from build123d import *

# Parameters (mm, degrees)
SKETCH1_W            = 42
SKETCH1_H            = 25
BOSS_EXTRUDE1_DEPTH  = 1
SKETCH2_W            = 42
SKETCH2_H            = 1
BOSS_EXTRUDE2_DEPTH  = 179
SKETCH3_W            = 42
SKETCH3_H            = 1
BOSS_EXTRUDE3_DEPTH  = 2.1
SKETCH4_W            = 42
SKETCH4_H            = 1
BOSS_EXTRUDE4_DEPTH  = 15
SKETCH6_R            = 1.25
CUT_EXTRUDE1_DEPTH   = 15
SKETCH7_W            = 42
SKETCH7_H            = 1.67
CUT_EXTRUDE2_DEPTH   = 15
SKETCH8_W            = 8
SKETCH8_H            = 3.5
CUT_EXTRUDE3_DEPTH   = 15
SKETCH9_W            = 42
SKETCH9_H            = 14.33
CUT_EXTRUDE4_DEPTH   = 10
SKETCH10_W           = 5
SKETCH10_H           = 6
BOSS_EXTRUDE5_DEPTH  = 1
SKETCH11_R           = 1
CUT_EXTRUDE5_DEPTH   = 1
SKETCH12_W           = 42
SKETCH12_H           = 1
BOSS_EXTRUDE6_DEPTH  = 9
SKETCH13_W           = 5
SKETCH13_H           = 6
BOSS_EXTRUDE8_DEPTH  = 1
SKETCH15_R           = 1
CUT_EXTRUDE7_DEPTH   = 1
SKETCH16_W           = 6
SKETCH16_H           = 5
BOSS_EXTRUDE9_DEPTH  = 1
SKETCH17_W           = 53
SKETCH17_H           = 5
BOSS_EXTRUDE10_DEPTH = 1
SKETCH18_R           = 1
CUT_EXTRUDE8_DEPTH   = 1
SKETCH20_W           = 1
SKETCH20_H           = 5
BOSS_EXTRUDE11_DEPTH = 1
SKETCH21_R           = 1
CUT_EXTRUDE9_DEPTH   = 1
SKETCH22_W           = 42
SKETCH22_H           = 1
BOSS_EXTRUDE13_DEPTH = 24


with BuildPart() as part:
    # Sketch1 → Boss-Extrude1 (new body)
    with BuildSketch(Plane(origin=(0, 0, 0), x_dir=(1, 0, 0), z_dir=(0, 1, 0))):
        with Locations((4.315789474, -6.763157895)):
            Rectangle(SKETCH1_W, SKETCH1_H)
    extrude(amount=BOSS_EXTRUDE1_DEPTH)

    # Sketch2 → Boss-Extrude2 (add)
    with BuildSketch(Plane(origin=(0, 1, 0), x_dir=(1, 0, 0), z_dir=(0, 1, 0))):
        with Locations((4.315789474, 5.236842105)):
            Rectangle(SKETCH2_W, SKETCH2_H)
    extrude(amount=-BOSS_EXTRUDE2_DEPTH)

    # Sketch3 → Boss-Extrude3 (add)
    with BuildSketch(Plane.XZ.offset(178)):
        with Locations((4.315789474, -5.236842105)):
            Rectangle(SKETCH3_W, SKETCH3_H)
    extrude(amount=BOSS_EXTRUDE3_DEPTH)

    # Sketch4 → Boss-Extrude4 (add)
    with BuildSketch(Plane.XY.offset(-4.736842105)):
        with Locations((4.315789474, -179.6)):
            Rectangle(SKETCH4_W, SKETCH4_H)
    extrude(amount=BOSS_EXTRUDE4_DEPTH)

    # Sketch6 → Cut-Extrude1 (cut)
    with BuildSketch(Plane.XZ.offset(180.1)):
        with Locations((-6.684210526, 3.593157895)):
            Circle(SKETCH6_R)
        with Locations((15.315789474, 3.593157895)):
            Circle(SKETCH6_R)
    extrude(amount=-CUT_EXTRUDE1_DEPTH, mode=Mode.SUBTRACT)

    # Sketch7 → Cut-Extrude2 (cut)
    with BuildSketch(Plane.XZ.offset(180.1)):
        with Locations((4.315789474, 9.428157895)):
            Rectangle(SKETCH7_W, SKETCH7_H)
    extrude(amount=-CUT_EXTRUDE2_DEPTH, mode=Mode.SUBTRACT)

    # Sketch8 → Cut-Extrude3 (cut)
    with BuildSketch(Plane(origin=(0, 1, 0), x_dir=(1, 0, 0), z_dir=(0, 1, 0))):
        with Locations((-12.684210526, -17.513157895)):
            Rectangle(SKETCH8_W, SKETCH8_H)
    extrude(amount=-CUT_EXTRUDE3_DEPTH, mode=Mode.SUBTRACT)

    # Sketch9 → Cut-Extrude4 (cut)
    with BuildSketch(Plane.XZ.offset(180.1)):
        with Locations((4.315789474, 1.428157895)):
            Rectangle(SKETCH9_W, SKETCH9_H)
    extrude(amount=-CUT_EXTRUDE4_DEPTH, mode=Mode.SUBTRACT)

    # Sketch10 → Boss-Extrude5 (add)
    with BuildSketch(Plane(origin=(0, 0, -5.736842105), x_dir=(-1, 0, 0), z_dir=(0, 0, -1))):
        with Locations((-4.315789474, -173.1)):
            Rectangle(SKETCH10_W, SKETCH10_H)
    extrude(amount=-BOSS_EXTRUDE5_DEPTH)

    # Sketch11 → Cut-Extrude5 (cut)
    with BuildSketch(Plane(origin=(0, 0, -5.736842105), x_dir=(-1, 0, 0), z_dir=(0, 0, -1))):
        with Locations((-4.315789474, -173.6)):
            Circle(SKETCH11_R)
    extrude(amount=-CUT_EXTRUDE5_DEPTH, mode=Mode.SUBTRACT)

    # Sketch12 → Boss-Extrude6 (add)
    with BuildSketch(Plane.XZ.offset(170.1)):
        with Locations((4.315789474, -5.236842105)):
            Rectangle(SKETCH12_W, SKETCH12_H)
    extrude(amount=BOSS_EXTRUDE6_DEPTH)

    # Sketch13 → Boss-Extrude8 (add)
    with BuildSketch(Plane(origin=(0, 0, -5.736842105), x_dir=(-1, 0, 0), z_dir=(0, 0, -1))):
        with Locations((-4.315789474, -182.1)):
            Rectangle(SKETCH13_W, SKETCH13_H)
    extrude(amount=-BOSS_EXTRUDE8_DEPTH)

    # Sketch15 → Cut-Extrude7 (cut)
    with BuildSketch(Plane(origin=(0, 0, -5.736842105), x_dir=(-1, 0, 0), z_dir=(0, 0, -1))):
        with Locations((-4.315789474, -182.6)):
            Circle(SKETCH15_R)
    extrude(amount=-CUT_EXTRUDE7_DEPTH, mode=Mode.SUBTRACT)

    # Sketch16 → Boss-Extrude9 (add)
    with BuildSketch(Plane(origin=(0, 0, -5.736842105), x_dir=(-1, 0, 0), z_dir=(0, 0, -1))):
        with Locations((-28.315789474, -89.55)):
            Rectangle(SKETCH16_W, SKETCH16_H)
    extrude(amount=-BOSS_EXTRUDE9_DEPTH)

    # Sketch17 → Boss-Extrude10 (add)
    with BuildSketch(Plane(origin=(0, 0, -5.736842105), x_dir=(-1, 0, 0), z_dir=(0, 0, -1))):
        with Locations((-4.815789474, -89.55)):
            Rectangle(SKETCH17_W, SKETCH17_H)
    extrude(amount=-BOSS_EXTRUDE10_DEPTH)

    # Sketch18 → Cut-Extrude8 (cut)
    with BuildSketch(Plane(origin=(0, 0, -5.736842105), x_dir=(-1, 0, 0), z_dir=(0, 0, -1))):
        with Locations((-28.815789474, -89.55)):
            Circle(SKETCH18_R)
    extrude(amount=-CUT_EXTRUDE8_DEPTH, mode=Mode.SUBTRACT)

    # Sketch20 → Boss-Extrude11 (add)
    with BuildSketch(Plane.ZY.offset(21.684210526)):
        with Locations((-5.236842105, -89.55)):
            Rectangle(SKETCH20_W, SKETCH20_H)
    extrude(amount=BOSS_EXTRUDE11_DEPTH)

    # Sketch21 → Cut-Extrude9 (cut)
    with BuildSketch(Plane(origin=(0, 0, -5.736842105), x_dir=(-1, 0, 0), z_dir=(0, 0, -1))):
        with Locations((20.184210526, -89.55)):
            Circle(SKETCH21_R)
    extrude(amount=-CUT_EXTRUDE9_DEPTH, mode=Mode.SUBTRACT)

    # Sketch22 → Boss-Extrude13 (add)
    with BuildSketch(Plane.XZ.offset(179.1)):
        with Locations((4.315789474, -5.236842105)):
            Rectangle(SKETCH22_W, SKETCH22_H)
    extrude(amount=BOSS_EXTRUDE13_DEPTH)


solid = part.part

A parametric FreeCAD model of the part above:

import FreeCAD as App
import Part
import Sketcher
Q = App.Units.Quantity


def add_polygon(sketch, points):
    """Adds a closed chain of lines whose ends are joined by coincident constraints."""
    first, n = sketch.GeometryCount, len(points)
    for a, b in zip(points, points[1:] + points[:1]):
        sketch.addGeometry(Part.LineSegment(App.Vector(*a, 0), App.Vector(*b, 0)), False)
    for i in range(n):
        sketch.addConstraint(Sketcher.Constraint("Coincident", first + i, 2, first + (i + 1) % n, 1))

doc = App.newDocument("Part")
body = doc.addObject("PartDesign::Body", "Body")

# Sketch on XZ plane
sketch1 = body.newObject("Sketcher::SketchObject", "Sketch")
sketch1.AttachmentSupport = (doc.getObject("XZ_Plane"), [""])
sketch1.MapMode = "FlatFace"
add_polygon(sketch1, [(-17, -6), (-17, 19), (25, 19), (25, -6)])  # lines 0-3
sketch1.addConstraint(Sketcher.Constraint("Vertical", 0))
sketch1.addConstraint(Sketcher.Constraint("Horizontal", 1))
sketch1.addConstraint(Sketcher.Constraint("Vertical", 2))
sketch1.addConstraint(Sketcher.Constraint("Horizontal", 3))
sketch1.addConstraint(Sketcher.Constraint("DistanceX", 1, 1, 1, 2, Q("42 mm")))
sketch1.addConstraint(Sketcher.Constraint("DistanceY", 0, 1, 0, 2, Q("25 mm")))
sketch1.addConstraint(Sketcher.Constraint("DistanceX", 0, 2, -1, 1, Q("16.684211 mm")))
sketch1.addConstraint(Sketcher.Constraint("DistanceY", -1, 1, 0, 2, Q("19.263158 mm")))
pad1 = body.newObject("PartDesign::Pad", "Pad")
pad1.Profile = sketch1
pad1.Length = 1
pad1.Reversed = True

# Sketch on XZ plane
sketch2 = body.newObject("Sketcher::SketchObject", "Sketch001")
sketch2.AttachmentSupport = (doc.getObject("XZ_Plane"), [""])
sketch2.MapMode = "FlatFace"
sketch2.AttachmentOffset = App.Placement(App.Vector(0, 0, -1), App.Rotation())
add_polygon(sketch2, [(-16.7, -5.7), (-16.7, -4.7), (25.3, -4.7), (25.3, -5.7)])  # lines 0-3
sketch2.addConstraint(Sketcher.Constraint("Vertical", 0))
sketch2.addConstraint(Sketcher.Constraint("Horizontal", 1))
sketch2.addConstraint(Sketcher.Constraint("Vertical", 2))
sketch2.addConstraint(Sketcher.Constraint("Horizontal", 3))
sketch2.addConstraint(Sketcher.Constraint("DistanceX", 1, 1, 1, 2, Q("42 mm")))
sketch2.addConstraint(Sketcher.Constraint("DistanceY", 0, 1, 0, 2, Q("1 mm")))
sketch2.addConstraint(Sketcher.Constraint("DistanceX", 0, 2, -1, 1, Q("16.684211 mm")))
sketch2.addConstraint(Sketcher.Constraint("DistanceY", 0, 2, -1, 1, Q("4.736842 mm")))
pad2 = body.newObject("PartDesign::Pad", "Pad001")
pad2.Profile = sketch2
pad2.Length = 179

# Sketch on XZ plane
sketch3 = body.newObject("Sketcher::SketchObject", "Sketch002")
sketch3.AttachmentSupport = (doc.getObject("XZ_Plane"), [""])
sketch3.MapMode = "FlatFace"
sketch3.AttachmentOffset = App.Placement(App.Vector(0, 0, 178), App.Rotation())
add_polygon(sketch3, [(-16.7, -4.7), (-16.7, -5.7), (25.3, -5.7), (25.3, -4.7)])  # lines 0-3
sketch3.addConstraint(Sketcher.Constraint("Vertical", 0))
sketch3.addConstraint(Sketcher.Constraint("Horizontal", 1))
sketch3.addConstraint(Sketcher.Constraint("Vertical", 2))
sketch3.addConstraint(Sketcher.Constraint("Horizontal", 3))
sketch3.addConstraint(Sketcher.Constraint("DistanceX", 1, 1, 1, 2, Q("42 mm")))
sketch3.addConstraint(Sketcher.Constraint("DistanceY", 0, 2, 0, 1, Q("1 mm")))
sketch3.addConstraint(Sketcher.Constraint("DistanceX", 0, 2, -1, 1, Q("16.684211 mm")))
sketch3.addConstraint(Sketcher.Constraint("DistanceY", 0, 2, -1, 1, Q("5.736842 mm")))
pad3 = body.newObject("PartDesign::Pad", "Pad002")
pad3.Profile = sketch3
pad3.Length = 2.1

# Sketch on XY plane
sketch4 = body.newObject("Sketcher::SketchObject", "Sketch003")
sketch4.AttachmentSupport = (doc.getObject("XY_Plane"), [""])
sketch4.MapMode = "FlatFace"
sketch4.AttachmentOffset = App.Placement(App.Vector(0, 0, -4.736842), App.Rotation())
add_polygon(sketch4, [(-16.7, -179.1), (-16.7, -180.1), (25.3, -180.1), (25.3, -179.1)])  # lines 0-3
sketch4.addConstraint(Sketcher.Constraint("Vertical", 0))
sketch4.addConstraint(Sketcher.Constraint("Horizontal", 1))
sketch4.addConstraint(Sketcher.Constraint("Vertical", 2))
sketch4.addConstraint(Sketcher.Constraint("Horizontal", 3))
sketch4.addConstraint(Sketcher.Constraint("DistanceX", 1, 1, 1, 2, Q("42 mm")))
sketch4.addConstraint(Sketcher.Constraint("DistanceY", 0, 2, 0, 1, Q("1 mm")))
sketch4.addConstraint(Sketcher.Constraint("DistanceY", 0, 2, -1, 1, Q("180.1 mm")))
sketch4.addConstraint(Sketcher.Constraint("DistanceX", 0, 2, -1, 1, Q("16.684211 mm")))
pad4 = body.newObject("PartDesign::Pad", "Pad003")
pad4.Profile = sketch4
pad4.Length = 15

# Sketch on XZ plane
sketch5 = body.newObject("Sketcher::SketchObject", "Sketch004")
sketch5.AttachmentSupport = (doc.getObject("XZ_Plane"), [""])
sketch5.MapMode = "FlatFace"
sketch5.AttachmentOffset = App.Placement(App.Vector(0, 0, 180.1), App.Rotation())
sketch5.addGeometry(Part.Circle(App.Vector(-6.7, 3.6, 0), App.Vector(0, 0, 1), 1.2), False)
sketch5.addGeometry(Part.Circle(App.Vector(15.3, 3.6, 0), App.Vector(0, 0, 1), 1.2), False)
sketch5.addConstraint(Sketcher.Constraint("Equal", 0, 1))
sketch5.addConstraint(Sketcher.Constraint("Horizontal", 0, 3, 1, 3))
sketch5.addConstraint(Sketcher.Constraint("Diameter", 0, Q("2.5 mm")))
sketch5.addConstraint(Sketcher.Constraint("DistanceX", 0, 3, 1, 3, Q("22 mm")))
sketch5.addConstraint(Sketcher.Constraint("DistanceX", 0, 3, -1, 1, Q("6.684211 mm")))
sketch5.addConstraint(Sketcher.Constraint("DistanceY", -1, 1, 0, 3, Q("3.593158 mm")))
pocket1 = body.newObject("PartDesign::Pocket", "Pocket")
pocket1.Profile = sketch5
pocket1.Length = 15

# Sketch on XZ plane
sketch6 = body.newObject("Sketcher::SketchObject", "Sketch005")
sketch6.AttachmentSupport = (doc.getObject("XZ_Plane"), [""])
sketch6.MapMode = "FlatFace"
sketch6.AttachmentOffset = App.Placement(App.Vector(0, 0, 180.1), App.Rotation())
add_polygon(sketch6, [(-16.7, 10.3), (-16.7, 8.6), (25.3, 8.6), (25.3, 10.3)])  # lines 0-3
sketch6.addConstraint(Sketcher.Constraint("Vertical", 0))
sketch6.addConstraint(Sketcher.Constraint("Horizontal", 1))
sketch6.addConstraint(Sketcher.Constraint("Vertical", 2))
sketch6.addConstraint(Sketcher.Constraint("Horizontal", 3))
sketch6.addConstraint(Sketcher.Constraint("DistanceX", 1, 1, 1, 2, Q("42 mm")))
sketch6.addConstraint(Sketcher.Constraint("DistanceY", 0, 2, 0, 1, Q("1.67 mm")))
sketch6.addConstraint(Sketcher.Constraint("DistanceX", 0, 2, -1, 1, Q("16.684211 mm")))
sketch6.addConstraint(Sketcher.Constraint("DistanceY", -1, 1, 0, 2, Q("8.593158 mm")))
pocket2 = body.newObject("PartDesign::Pocket", "Pocket001")
pocket2.Profile = sketch6
pocket2.Length = 15

# Sketch on XZ plane
sketch7 = body.newObject("Sketcher::SketchObject", "Sketch006")
sketch7.AttachmentSupport = (doc.getObject("XZ_Plane"), [""])
sketch7.MapMode = "FlatFace"
sketch7.AttachmentOffset = App.Placement(App.Vector(0, 0, -1), App.Rotation())
add_polygon(sketch7, [(-16.7, 15.8), (-16.7, 19.3), (-8.7, 19.3), (-8.7, 15.8)])  # lines 0-3
sketch7.addConstraint(Sketcher.Constraint("Vertical", 0))
sketch7.addConstraint(Sketcher.Constraint("Horizontal", 1))
sketch7.addConstraint(Sketcher.Constraint("Vertical", 2))
sketch7.addConstraint(Sketcher.Constraint("Horizontal", 3))
sketch7.addConstraint(Sketcher.Constraint("DistanceX", 1, 1, 1, 2, Q("8 mm")))
sketch7.addConstraint(Sketcher.Constraint("DistanceY", 0, 1, 0, 2, Q("3.5 mm")))
sketch7.addConstraint(Sketcher.Constraint("DistanceX", 0, 2, -1, 1, Q("16.684211 mm")))
sketch7.addConstraint(Sketcher.Constraint("DistanceY", -1, 1, 0, 2, Q("19.263158 mm")))
pocket3 = body.newObject("PartDesign::Pocket", "Pocket002")
pocket3.Profile = sketch7
pocket3.Length = 15
pocket3.Reversed = True

# Sketch on XZ plane
sketch8 = body.newObject("Sketcher::SketchObject", "Sketch007")
sketch8.AttachmentSupport = (doc.getObject("XZ_Plane"), [""])
sketch8.MapMode = "FlatFace"
sketch8.AttachmentOffset = App.Placement(App.Vector(0, 0, 180.1), App.Rotation())
add_polygon(sketch8, [(-17, 9), (-17, -6), (25, -6), (25, 9)])  # lines 0-3
sketch8.addConstraint(Sketcher.Constraint("Vertical", 0))
sketch8.addConstraint(Sketcher.Constraint("Horizontal", 1))
sketch8.addConstraint(Sketcher.Constraint("Vertical", 2))
sketch8.addConstraint(Sketcher.Constraint("Horizontal", 3))
sketch8.addConstraint(Sketcher.Constraint("DistanceX", 1, 1, 1, 2, Q("42 mm")))
sketch8.addConstraint(Sketcher.Constraint("DistanceY", 0, 2, 0, 1, Q("14.33 mm")))
sketch8.addConstraint(Sketcher.Constraint("DistanceX", 0, 2, -1, 1, Q("16.684211 mm")))
sketch8.addConstraint(Sketcher.Constraint("DistanceY", 0, 2, -1, 1, Q("5.736842 mm")))
pocket4 = body.newObject("PartDesign::Pocket", "Pocket003")
pocket4.Profile = sketch8
pocket4.Length = 10

# Sketch on XY plane
sketch9 = body.newObject("Sketcher::SketchObject", "Sketch008")
sketch9.AttachmentSupport = (doc.getObject("XY_Plane"), [""])
sketch9.MapMode = "FlatFace"
sketch9.AttachmentOffset = App.Placement(App.Vector(0, 0, -5.736842), App.Rotation())
add_polygon(sketch9, [(7, -170), (7, -176), (2, -176), (2, -170)])  # lines 0-3
sketch9.addConstraint(Sketcher.Constraint("Vertical", 0))
sketch9.addConstraint(Sketcher.Constraint("Horizontal", 1))
sketch9.addConstraint(Sketcher.Constraint("Vertical", 2))
sketch9.addConstraint(Sketcher.Constraint("Horizontal", 3))
sketch9.addConstraint(Sketcher.Constraint("DistanceX", 1, 2, 1, 1, Q("5 mm")))
sketch9.addConstraint(Sketcher.Constraint("DistanceY", 0, 2, 0, 1, Q("6 mm")))
sketch9.addConstraint(Sketcher.Constraint("DistanceY", 0, 2, -1, 1, Q("176.1 mm")))
sketch9.addConstraint(Sketcher.Constraint("DistanceX", -1, 1, 0, 2, Q("6.815789 mm")))
pad5 = body.newObject("PartDesign::Pad", "Pad004")
pad5.Profile = sketch9
pad5.Length = 1

# Sketch on XY plane
sketch10 = body.newObject("Sketcher::SketchObject", "Sketch009")
sketch10.AttachmentSupport = (doc.getObject("XY_Plane"), [""])
sketch10.MapMode = "FlatFace"
sketch10.AttachmentOffset = App.Placement(App.Vector(0, 0, -5.736842), App.Rotation())
sketch10.addGeometry(Part.Circle(App.Vector(4.3, -173.6, 0), App.Vector(0, 0, 1), 1), False)
sketch10.addConstraint(Sketcher.Constraint("Diameter", 0, Q("2 mm")))
sketch10.addConstraint(Sketcher.Constraint("DistanceY", 0, 3, -1, 1, Q("173.6 mm")))
sketch10.addConstraint(Sketcher.Constraint("DistanceX", -1, 1, 0, 3, Q("4.315789 mm")))
pocket5 = body.newObject("PartDesign::Pocket", "Pocket004")
pocket5.Profile = sketch10
pocket5.Length = 1
pocket5.Reversed = True

# Sketch on XZ plane
sketch11 = body.newObject("Sketcher::SketchObject", "Sketch010")
sketch11.AttachmentSupport = (doc.getObject("XZ_Plane"), [""])
sketch11.MapMode = "FlatFace"
sketch11.AttachmentOffset = App.Placement(App.Vector(0, 0, 170.1), App.Rotation())
add_polygon(sketch11, [(-16.7, -4.7), (-16.7, -5.7), (25.3, -5.7), (25.3, -4.7)])  # lines 0-3
sketch11.addConstraint(Sketcher.Constraint("Vertical", 0))
sketch11.addConstraint(Sketcher.Constraint("Horizontal", 1))
sketch11.addConstraint(Sketcher.Constraint("Vertical", 2))
sketch11.addConstraint(Sketcher.Constraint("Horizontal", 3))
sketch11.addConstraint(Sketcher.Constraint("DistanceX", 1, 1, 1, 2, Q("42 mm")))
sketch11.addConstraint(Sketcher.Constraint("DistanceY", 0, 2, 0, 1, Q("1 mm")))
sketch11.addConstraint(Sketcher.Constraint("DistanceX", 0, 2, -1, 1, Q("16.684211 mm")))
sketch11.addConstraint(Sketcher.Constraint("DistanceY", 0, 2, -1, 1, Q("5.736842 mm")))
pad6 = body.newObject("PartDesign::Pad", "Pad005")
pad6.Profile = sketch11
pad6.Length = 9

# Sketch on XY plane
sketch12 = body.newObject("Sketcher::SketchObject", "Sketch011")
sketch12.AttachmentSupport = (doc.getObject("XY_Plane"), [""])
sketch12.MapMode = "FlatFace"
sketch12.AttachmentOffset = App.Placement(App.Vector(0, 0, -5.736842), App.Rotation())
add_polygon(sketch12, [(7, -179), (7, -185), (2, -185), (2, -179)])  # lines 0-3
sketch12.addConstraint(Sketcher.Constraint("Vertical", 0))
sketch12.addConstraint(Sketcher.Constraint("Horizontal", 1))
sketch12.addConstraint(Sketcher.Constraint("Vertical", 2))
sketch12.addConstraint(Sketcher.Constraint("Horizontal", 3))
sketch12.addConstraint(Sketcher.Constraint("DistanceX", 1, 2, 1, 1, Q("5 mm")))
sketch12.addConstraint(Sketcher.Constraint("DistanceY", 0, 2, 0, 1, Q("6 mm")))
sketch12.addConstraint(Sketcher.Constraint("DistanceY", 0, 2, -1, 1, Q("185.1 mm")))
sketch12.addConstraint(Sketcher.Constraint("DistanceX", -1, 1, 0, 2, Q("6.815789 mm")))
pad7 = body.newObject("PartDesign::Pad", "Pad006")
pad7.Profile = sketch12
pad7.Length = 1

# Sketch on XY plane
sketch13 = body.newObject("Sketcher::SketchObject", "Sketch012")
sketch13.AttachmentSupport = (doc.getObject("XY_Plane"), [""])
sketch13.MapMode = "FlatFace"
sketch13.AttachmentOffset = App.Placement(App.Vector(0, 0, -5.736842), App.Rotation())
sketch13.addGeometry(Part.Circle(App.Vector(4.3, -182.6, 0), App.Vector(0, 0, 1), 1), False)
sketch13.addConstraint(Sketcher.Constraint("Diameter", 0, Q("2 mm")))
sketch13.addConstraint(Sketcher.Constraint("DistanceY", 0, 3, -1, 1, Q("182.6 mm")))
sketch13.addConstraint(Sketcher.Constraint("DistanceX", -1, 1, 0, 3, Q("4.315789 mm")))
pocket6 = body.newObject("PartDesign::Pocket", "Pocket005")
pocket6.Profile = sketch13
pocket6.Length = 1
pocket6.Reversed = True

# Sketch on XY plane
sketch14 = body.newObject("Sketcher::SketchObject", "Sketch013")
sketch14.AttachmentSupport = (doc.getObject("XY_Plane"), [""])
sketch14.MapMode = "FlatFace"
sketch14.AttachmentOffset = App.Placement(App.Vector(0, 0, -5.736842), App.Rotation())
add_polygon(sketch14, [(31, -87), (31, -92), (25, -92), (25, -87)])  # lines 0-3
sketch14.addConstraint(Sketcher.Constraint("Vertical", 0))
sketch14.addConstraint(Sketcher.Constraint("Horizontal", 1))
sketch14.addConstraint(Sketcher.Constraint("Vertical", 2))
sketch14.addConstraint(Sketcher.Constraint("Horizontal", 3))
sketch14.addConstraint(Sketcher.Constraint("DistanceX", 1, 2, 1, 1, Q("6 mm")))
sketch14.addConstraint(Sketcher.Constraint("DistanceY", 0, 2, 0, 1, Q("5 mm")))
sketch14.addConstraint(Sketcher.Constraint("DistanceY", 0, 2, -1, 1, Q("92.05 mm")))
sketch14.addConstraint(Sketcher.Constraint("DistanceX", -1, 1, 0, 2, Q("31.315789 mm")))
pad8 = body.newObject("PartDesign::Pad", "Pad007")
pad8.Profile = sketch14
pad8.Length = 1

# Sketch on XY plane
sketch15 = body.newObject("Sketcher::SketchObject", "Sketch014")
sketch15.AttachmentSupport = (doc.getObject("XY_Plane"), [""])
sketch15.MapMode = "FlatFace"
sketch15.AttachmentOffset = App.Placement(App.Vector(0, 0, -5.736842), App.Rotation())
add_polygon(sketch15, [(31, -87), (31, -92), (-22, -92), (-22, -87)])  # lines 0-3
sketch15.addConstraint(Sketcher.Constraint("Vertical", 0))
sketch15.addConstraint(Sketcher.Constraint("Horizontal", 1))
sketch15.addConstraint(Sketcher.Constraint("Vertical", 2))
sketch15.addConstraint(Sketcher.Constraint("Horizontal", 3))
sketch15.addConstraint(Sketcher.Constraint("DistanceX", 1, 2, 1, 1, Q("53 mm")))
sketch15.addConstraint(Sketcher.Constraint("DistanceY", 0, 2, 0, 1, Q("5 mm")))
sketch15.addConstraint(Sketcher.Constraint("DistanceY", 0, 2, -1, 1, Q("92.05 mm")))
sketch15.addConstraint(Sketcher.Constraint("DistanceX", -1, 1, 0, 2, Q("31.315789 mm")))
pad9 = body.newObject("PartDesign::Pad", "Pad008")
pad9.Profile = sketch15
pad9.Length = 1

# Sketch on XY plane
sketch16 = body.newObject("Sketcher::SketchObject", "Sketch015")
sketch16.AttachmentSupport = (doc.getObject("XY_Plane"), [""])
sketch16.MapMode = "FlatFace"
sketch16.AttachmentOffset = App.Placement(App.Vector(0, 0, -5.736842), App.Rotation())
sketch16.addGeometry(Part.Circle(App.Vector(28.8, -89.5, 0), App.Vector(0, 0, 1), 1), False)
sketch16.addConstraint(Sketcher.Constraint("Diameter", 0, Q("2 mm")))
sketch16.addConstraint(Sketcher.Constraint("DistanceY", 0, 3, -1, 1, Q("89.55 mm")))
sketch16.addConstraint(Sketcher.Constraint("DistanceX", -1, 1, 0, 3, Q("28.815789 mm")))
pocket7 = body.newObject("PartDesign::Pocket", "Pocket006")
pocket7.Profile = sketch16
pocket7.Length = 1
pocket7.Reversed = True

# Sketch on YZ plane
sketch17 = body.newObject("Sketcher::SketchObject", "Sketch016")
sketch17.AttachmentSupport = (doc.getObject("YZ_Plane"), [""])
sketch17.MapMode = "FlatFace"
sketch17.AttachmentOffset = App.Placement(App.Vector(0, 0, -21.684211), App.Rotation())
add_polygon(sketch17, [(-87, -5.7), (-92, -5.7), (-92, -4.7), (-87, -4.7)])  # lines 0-3
sketch17.addConstraint(Sketcher.Constraint("Horizontal", 0))
sketch17.addConstraint(Sketcher.Constraint("Vertical", 1))
sketch17.addConstraint(Sketcher.Constraint("Horizontal", 2))
sketch17.addConstraint(Sketcher.Constraint("Vertical", 3))
sketch17.addConstraint(Sketcher.Constraint("DistanceX", 0, 2, 0, 1, Q("5 mm")))
sketch17.addConstraint(Sketcher.Constraint("DistanceY", 1, 1, 1, 2, Q("1 mm")))
sketch17.addConstraint(Sketcher.Constraint("DistanceX", 0, 2, -1, 1, Q("92.05 mm")))
sketch17.addConstraint(Sketcher.Constraint("DistanceY", 0, 2, -1, 1, Q("5.736842 mm")))
pad10 = body.newObject("PartDesign::Pad", "Pad009")
pad10.Profile = sketch17
pad10.Length = 1
pad10.Reversed = True

# Sketch on XY plane
sketch18 = body.newObject("Sketcher::SketchObject", "Sketch017")
sketch18.AttachmentSupport = (doc.getObject("XY_Plane"), [""])
sketch18.MapMode = "FlatFace"
sketch18.AttachmentOffset = App.Placement(App.Vector(0, 0, -5.736842), App.Rotation())
sketch18.addGeometry(Part.Circle(App.Vector(-20.2, -89.5, 0), App.Vector(0, 0, 1), 1), False)
sketch18.addConstraint(Sketcher.Constraint("Diameter", 0, Q("2 mm")))
sketch18.addConstraint(Sketcher.Constraint("DistanceY", 0, 3, -1, 1, Q("89.55 mm")))
sketch18.addConstraint(Sketcher.Constraint("DistanceX", 0, 3, -1, 1, Q("20.184211 mm")))
pocket8 = body.newObject("PartDesign::Pocket", "Pocket007")
pocket8.Profile = sketch18
pocket8.Length = 1
pocket8.Reversed = True

# Sketch on XZ plane
sketch19 = body.newObject("Sketcher::SketchObject", "Sketch018")
sketch19.AttachmentSupport = (doc.getObject("XZ_Plane"), [""])
sketch19.MapMode = "FlatFace"
sketch19.AttachmentOffset = App.Placement(App.Vector(0, 0, 179.1), App.Rotation())
add_polygon(sketch19, [(-16.7, -4.7), (-16.7, -5.7), (25.3, -5.7), (25.3, -4.7)])  # lines 0-3
sketch19.addConstraint(Sketcher.Constraint("Vertical", 0))
sketch19.addConstraint(Sketcher.Constraint("Horizontal", 1))
sketch19.addConstraint(Sketcher.Constraint("Vertical", 2))
sketch19.addConstraint(Sketcher.Constraint("Horizontal", 3))
sketch19.addConstraint(Sketcher.Constraint("DistanceX", 1, 1, 1, 2, Q("42 mm")))
sketch19.addConstraint(Sketcher.Constraint("DistanceY", 0, 2, 0, 1, Q("1 mm")))
sketch19.addConstraint(Sketcher.Constraint("DistanceX", 0, 2, -1, 1, Q("16.684211 mm")))
sketch19.addConstraint(Sketcher.Constraint("DistanceY", 0, 2, -1, 1, Q("5.736842 mm")))
pad11 = body.newObject("PartDesign::Pad", "Pad010")
pad11.Profile = sketch19
pad11.Length = 24

doc.recompute()
